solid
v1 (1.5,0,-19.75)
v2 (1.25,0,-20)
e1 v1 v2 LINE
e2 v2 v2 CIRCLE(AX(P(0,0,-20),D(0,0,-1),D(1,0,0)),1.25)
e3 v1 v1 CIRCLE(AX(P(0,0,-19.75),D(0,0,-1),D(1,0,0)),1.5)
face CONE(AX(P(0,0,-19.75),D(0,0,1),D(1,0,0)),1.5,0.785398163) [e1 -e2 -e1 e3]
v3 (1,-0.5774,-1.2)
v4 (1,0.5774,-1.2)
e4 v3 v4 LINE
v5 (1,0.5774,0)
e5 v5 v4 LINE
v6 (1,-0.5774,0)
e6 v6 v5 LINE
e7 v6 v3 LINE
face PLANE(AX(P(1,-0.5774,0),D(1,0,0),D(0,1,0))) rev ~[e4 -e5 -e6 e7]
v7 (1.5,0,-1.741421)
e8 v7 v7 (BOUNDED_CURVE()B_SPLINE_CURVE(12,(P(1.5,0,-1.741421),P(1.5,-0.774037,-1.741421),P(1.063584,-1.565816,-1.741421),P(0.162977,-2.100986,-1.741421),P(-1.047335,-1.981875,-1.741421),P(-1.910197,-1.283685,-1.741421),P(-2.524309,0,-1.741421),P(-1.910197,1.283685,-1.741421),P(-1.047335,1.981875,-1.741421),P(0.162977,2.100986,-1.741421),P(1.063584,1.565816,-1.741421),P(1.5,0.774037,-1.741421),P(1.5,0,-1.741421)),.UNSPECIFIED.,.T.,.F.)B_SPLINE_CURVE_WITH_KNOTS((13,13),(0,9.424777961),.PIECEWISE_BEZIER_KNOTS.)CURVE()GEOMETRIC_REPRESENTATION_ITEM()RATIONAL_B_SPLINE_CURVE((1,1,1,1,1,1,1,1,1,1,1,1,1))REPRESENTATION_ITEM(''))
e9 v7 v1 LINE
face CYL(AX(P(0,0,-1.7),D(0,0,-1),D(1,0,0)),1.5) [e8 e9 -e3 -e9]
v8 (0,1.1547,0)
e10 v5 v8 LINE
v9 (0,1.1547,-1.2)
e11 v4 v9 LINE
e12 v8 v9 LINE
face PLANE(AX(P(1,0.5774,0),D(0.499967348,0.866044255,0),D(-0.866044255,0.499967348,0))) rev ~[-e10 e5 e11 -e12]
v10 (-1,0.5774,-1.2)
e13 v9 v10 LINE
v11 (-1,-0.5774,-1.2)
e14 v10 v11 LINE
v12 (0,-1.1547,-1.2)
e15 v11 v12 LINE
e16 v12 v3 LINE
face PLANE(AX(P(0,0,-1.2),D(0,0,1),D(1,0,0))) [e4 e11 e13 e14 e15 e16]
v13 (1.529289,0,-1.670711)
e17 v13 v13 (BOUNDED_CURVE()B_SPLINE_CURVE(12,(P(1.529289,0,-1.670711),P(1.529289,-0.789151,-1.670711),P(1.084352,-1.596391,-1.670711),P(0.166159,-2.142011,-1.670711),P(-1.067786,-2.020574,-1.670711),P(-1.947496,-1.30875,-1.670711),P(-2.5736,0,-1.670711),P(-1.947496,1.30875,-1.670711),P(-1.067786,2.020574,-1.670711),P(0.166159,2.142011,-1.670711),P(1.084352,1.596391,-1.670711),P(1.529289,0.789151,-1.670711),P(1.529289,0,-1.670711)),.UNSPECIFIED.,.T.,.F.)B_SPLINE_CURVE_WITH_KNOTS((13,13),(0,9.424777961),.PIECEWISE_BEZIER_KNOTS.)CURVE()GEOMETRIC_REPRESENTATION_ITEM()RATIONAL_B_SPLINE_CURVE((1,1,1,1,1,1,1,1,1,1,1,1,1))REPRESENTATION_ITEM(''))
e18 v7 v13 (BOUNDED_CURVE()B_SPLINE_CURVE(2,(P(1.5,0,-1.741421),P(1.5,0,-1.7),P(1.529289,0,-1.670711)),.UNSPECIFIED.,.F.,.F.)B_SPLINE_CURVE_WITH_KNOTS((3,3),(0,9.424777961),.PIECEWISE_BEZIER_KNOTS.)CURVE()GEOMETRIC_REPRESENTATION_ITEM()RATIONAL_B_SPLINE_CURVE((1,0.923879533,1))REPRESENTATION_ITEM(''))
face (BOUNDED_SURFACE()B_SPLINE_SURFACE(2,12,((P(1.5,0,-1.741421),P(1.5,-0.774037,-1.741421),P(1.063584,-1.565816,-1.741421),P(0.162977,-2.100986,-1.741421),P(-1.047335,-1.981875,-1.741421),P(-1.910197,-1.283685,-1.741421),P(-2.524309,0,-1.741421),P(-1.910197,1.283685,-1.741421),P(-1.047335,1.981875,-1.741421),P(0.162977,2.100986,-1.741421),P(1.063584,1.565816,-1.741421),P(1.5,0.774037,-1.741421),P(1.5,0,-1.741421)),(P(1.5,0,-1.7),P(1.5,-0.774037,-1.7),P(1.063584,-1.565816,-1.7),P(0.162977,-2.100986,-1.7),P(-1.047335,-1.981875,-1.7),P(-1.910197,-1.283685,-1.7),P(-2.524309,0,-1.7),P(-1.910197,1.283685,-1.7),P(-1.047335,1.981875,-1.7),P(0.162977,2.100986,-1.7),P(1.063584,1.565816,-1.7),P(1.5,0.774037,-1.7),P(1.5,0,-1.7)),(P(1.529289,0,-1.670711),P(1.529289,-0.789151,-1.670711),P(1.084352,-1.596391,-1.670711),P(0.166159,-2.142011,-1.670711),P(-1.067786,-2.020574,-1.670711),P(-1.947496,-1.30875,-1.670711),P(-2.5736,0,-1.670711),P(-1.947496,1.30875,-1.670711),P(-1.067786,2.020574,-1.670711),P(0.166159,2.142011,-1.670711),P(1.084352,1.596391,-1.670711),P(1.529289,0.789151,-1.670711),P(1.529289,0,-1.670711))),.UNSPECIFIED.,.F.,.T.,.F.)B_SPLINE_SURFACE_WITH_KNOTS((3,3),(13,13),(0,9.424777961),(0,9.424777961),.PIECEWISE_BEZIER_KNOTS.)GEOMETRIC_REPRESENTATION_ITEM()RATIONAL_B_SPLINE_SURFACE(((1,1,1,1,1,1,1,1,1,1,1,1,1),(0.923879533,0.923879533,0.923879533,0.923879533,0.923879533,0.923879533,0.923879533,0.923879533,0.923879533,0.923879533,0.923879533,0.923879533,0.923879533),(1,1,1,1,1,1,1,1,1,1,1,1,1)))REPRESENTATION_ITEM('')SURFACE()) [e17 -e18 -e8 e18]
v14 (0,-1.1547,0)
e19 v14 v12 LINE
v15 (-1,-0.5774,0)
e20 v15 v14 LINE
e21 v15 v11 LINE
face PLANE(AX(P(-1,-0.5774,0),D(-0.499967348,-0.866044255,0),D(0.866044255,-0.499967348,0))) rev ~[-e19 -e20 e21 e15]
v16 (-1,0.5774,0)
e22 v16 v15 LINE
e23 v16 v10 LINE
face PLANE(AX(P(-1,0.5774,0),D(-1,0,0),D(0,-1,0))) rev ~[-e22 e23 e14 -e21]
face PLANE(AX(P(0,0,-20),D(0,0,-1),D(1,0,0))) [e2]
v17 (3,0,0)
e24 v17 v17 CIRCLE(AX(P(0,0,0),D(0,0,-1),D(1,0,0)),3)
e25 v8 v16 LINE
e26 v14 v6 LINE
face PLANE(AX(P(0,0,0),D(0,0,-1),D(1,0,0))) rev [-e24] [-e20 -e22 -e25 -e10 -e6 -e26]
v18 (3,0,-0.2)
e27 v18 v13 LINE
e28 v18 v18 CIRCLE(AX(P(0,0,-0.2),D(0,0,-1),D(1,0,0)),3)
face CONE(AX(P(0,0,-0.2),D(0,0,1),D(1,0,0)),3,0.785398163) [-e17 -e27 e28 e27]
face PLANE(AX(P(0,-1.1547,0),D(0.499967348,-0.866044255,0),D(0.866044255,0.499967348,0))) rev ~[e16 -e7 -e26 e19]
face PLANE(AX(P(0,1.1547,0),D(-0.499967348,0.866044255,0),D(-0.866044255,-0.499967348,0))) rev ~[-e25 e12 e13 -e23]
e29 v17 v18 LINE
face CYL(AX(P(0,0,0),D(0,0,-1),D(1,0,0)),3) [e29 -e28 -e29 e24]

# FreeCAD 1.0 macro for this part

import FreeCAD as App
import Part
import Sketcher


def edges_at(feature, points):
    """Names of the edges that pass closest to the given points."""
    edges = feature.Shape.Edges
    near = lambda p: min(range(len(edges)), key=lambda i: edges[i].distToShape(Part.Vertex(*p))[0])
    return sorted({f"Edge{near(p) + 1}" for p in points})


def add_polygon(sketch, points):
    """Adds a closed chain of lines whose ends are joined by coincident constraints."""
    first, n = sketch.GeometryCount, len(points)
    for a, b in zip(points, points[1:] + points[:1]):
        sketch.addGeometry(Part.LineSegment(App.Vector(*a, 0), App.Vector(*b, 0)), False)
    for i in range(n):
        sketch.addConstraint(Sketcher.Constraint("Coincident", first + i, 2, first + (i + 1) % n, 1))

doc = App.newDocument("Part")
body = doc.addObject("PartDesign::Body", "Body")

sketch1 = doc.addObject("Sketcher::SketchObject", "Sketch")
body.addObject(sketch1)
sketch1.AttachmentSupport = (doc.XZ_Plane, [""])
sketch1.MapMode = "FlatFace"
add_polygon(sketch1, [(1.5, -1.7), (1.5, -20), (0, -20), (0, 0), (3, 0), (3, -0.2)])
sketch1.addConstraint([
    Sketcher.Constraint("Vertical", 0),
    Sketcher.Constraint("Horizontal", 1),
    Sketcher.Constraint("Vertical", 2),
    Sketcher.Constraint("Horizontal", 3),
    Sketcher.Constraint("Vertical", 4),
    Sketcher.Constraint("Coincident", 2, 2, -1, 1),
    Sketcher.Constraint("DistanceX", 3, 1, 3, 2, 3.0),
    Sketcher.Constraint("DistanceY", 2, 1, 2, 2, 20.0),
    Sketcher.Constraint("DistanceX", 1, 2, 1, 1, 1.5),
    Sketcher.Constraint("DistanceY", 4, 2, 4, 1, 0.2),
    Sketcher.Constraint("DistanceY", 5, 2, 4, 2, 1.5),
])
revolution = doc.addObject("PartDesign::Revolution", "Revolution")
body.addObject(revolution)
revolution.Profile = sketch1
revolution.ReferenceAxis = (sketch1, ["V_Axis"])
revolution.Angle = 360

sketch2 = doc.addObject("Sketcher::SketchObject", "Sketch001")
body.addObject(sketch2)
sketch2.AttachmentSupport = (doc.XY_Plane, [""])
sketch2.MapMode = "FlatFace"
add_polygon(sketch2, [(0, 1.1547), (-1, 0.5774), (-1, -0.5774), (0, -1.1547), (1, -0.5774), (1, 0.5774)])
sketch2.addConstraint([
    Sketcher.Constraint("Vertical", 1),
    Sketcher.Constraint("Vertical", 4),
    Sketcher.Constraint("Symmetric", 0, 2, 3, 2, -1, 1),
    Sketcher.Constraint("Symmetric", 2, 2, 5, 2, -1, 1),
    Sketcher.Constraint("PointOnObject", 2, 2, -2),
    Sketcher.Constraint("Parallel", 2, 5),
    Sketcher.Constraint("Horizontal", 1, 2, 3, 2),
    Sketcher.Constraint("DistanceX", 1, 2, 3, 2, 2.0),
    Sketcher.Constraint("DistanceY", 1, 2, 1, 1, 1.1548),
    Sketcher.Constraint("DistanceY", 2, 2, 0, 2, 1.732),
])
pocket1 = doc.addObject("PartDesign::Pocket", "Pocket")
body.addObject(pocket1)
pocket1.Profile = sketch2
pocket1.Length = 1.2
doc.recompute()

fillet = doc.addObject("PartDesign::Fillet", "Fillet")
body.addObject(fillet)
fillet.Base = (pocket1, edges_at(pocket1, [(-1.5, 0, -1.7)]))
fillet.Radius = 0.1
doc.recompute()

chamfer = doc.addObject("PartDesign::Chamfer", "Chamfer")
body.addObject(chamfer)
chamfer.Base = (fillet, edges_at(fillet, [(-1.5, 0, -20)]))
chamfer.Size = 0.25

doc.recompute()
